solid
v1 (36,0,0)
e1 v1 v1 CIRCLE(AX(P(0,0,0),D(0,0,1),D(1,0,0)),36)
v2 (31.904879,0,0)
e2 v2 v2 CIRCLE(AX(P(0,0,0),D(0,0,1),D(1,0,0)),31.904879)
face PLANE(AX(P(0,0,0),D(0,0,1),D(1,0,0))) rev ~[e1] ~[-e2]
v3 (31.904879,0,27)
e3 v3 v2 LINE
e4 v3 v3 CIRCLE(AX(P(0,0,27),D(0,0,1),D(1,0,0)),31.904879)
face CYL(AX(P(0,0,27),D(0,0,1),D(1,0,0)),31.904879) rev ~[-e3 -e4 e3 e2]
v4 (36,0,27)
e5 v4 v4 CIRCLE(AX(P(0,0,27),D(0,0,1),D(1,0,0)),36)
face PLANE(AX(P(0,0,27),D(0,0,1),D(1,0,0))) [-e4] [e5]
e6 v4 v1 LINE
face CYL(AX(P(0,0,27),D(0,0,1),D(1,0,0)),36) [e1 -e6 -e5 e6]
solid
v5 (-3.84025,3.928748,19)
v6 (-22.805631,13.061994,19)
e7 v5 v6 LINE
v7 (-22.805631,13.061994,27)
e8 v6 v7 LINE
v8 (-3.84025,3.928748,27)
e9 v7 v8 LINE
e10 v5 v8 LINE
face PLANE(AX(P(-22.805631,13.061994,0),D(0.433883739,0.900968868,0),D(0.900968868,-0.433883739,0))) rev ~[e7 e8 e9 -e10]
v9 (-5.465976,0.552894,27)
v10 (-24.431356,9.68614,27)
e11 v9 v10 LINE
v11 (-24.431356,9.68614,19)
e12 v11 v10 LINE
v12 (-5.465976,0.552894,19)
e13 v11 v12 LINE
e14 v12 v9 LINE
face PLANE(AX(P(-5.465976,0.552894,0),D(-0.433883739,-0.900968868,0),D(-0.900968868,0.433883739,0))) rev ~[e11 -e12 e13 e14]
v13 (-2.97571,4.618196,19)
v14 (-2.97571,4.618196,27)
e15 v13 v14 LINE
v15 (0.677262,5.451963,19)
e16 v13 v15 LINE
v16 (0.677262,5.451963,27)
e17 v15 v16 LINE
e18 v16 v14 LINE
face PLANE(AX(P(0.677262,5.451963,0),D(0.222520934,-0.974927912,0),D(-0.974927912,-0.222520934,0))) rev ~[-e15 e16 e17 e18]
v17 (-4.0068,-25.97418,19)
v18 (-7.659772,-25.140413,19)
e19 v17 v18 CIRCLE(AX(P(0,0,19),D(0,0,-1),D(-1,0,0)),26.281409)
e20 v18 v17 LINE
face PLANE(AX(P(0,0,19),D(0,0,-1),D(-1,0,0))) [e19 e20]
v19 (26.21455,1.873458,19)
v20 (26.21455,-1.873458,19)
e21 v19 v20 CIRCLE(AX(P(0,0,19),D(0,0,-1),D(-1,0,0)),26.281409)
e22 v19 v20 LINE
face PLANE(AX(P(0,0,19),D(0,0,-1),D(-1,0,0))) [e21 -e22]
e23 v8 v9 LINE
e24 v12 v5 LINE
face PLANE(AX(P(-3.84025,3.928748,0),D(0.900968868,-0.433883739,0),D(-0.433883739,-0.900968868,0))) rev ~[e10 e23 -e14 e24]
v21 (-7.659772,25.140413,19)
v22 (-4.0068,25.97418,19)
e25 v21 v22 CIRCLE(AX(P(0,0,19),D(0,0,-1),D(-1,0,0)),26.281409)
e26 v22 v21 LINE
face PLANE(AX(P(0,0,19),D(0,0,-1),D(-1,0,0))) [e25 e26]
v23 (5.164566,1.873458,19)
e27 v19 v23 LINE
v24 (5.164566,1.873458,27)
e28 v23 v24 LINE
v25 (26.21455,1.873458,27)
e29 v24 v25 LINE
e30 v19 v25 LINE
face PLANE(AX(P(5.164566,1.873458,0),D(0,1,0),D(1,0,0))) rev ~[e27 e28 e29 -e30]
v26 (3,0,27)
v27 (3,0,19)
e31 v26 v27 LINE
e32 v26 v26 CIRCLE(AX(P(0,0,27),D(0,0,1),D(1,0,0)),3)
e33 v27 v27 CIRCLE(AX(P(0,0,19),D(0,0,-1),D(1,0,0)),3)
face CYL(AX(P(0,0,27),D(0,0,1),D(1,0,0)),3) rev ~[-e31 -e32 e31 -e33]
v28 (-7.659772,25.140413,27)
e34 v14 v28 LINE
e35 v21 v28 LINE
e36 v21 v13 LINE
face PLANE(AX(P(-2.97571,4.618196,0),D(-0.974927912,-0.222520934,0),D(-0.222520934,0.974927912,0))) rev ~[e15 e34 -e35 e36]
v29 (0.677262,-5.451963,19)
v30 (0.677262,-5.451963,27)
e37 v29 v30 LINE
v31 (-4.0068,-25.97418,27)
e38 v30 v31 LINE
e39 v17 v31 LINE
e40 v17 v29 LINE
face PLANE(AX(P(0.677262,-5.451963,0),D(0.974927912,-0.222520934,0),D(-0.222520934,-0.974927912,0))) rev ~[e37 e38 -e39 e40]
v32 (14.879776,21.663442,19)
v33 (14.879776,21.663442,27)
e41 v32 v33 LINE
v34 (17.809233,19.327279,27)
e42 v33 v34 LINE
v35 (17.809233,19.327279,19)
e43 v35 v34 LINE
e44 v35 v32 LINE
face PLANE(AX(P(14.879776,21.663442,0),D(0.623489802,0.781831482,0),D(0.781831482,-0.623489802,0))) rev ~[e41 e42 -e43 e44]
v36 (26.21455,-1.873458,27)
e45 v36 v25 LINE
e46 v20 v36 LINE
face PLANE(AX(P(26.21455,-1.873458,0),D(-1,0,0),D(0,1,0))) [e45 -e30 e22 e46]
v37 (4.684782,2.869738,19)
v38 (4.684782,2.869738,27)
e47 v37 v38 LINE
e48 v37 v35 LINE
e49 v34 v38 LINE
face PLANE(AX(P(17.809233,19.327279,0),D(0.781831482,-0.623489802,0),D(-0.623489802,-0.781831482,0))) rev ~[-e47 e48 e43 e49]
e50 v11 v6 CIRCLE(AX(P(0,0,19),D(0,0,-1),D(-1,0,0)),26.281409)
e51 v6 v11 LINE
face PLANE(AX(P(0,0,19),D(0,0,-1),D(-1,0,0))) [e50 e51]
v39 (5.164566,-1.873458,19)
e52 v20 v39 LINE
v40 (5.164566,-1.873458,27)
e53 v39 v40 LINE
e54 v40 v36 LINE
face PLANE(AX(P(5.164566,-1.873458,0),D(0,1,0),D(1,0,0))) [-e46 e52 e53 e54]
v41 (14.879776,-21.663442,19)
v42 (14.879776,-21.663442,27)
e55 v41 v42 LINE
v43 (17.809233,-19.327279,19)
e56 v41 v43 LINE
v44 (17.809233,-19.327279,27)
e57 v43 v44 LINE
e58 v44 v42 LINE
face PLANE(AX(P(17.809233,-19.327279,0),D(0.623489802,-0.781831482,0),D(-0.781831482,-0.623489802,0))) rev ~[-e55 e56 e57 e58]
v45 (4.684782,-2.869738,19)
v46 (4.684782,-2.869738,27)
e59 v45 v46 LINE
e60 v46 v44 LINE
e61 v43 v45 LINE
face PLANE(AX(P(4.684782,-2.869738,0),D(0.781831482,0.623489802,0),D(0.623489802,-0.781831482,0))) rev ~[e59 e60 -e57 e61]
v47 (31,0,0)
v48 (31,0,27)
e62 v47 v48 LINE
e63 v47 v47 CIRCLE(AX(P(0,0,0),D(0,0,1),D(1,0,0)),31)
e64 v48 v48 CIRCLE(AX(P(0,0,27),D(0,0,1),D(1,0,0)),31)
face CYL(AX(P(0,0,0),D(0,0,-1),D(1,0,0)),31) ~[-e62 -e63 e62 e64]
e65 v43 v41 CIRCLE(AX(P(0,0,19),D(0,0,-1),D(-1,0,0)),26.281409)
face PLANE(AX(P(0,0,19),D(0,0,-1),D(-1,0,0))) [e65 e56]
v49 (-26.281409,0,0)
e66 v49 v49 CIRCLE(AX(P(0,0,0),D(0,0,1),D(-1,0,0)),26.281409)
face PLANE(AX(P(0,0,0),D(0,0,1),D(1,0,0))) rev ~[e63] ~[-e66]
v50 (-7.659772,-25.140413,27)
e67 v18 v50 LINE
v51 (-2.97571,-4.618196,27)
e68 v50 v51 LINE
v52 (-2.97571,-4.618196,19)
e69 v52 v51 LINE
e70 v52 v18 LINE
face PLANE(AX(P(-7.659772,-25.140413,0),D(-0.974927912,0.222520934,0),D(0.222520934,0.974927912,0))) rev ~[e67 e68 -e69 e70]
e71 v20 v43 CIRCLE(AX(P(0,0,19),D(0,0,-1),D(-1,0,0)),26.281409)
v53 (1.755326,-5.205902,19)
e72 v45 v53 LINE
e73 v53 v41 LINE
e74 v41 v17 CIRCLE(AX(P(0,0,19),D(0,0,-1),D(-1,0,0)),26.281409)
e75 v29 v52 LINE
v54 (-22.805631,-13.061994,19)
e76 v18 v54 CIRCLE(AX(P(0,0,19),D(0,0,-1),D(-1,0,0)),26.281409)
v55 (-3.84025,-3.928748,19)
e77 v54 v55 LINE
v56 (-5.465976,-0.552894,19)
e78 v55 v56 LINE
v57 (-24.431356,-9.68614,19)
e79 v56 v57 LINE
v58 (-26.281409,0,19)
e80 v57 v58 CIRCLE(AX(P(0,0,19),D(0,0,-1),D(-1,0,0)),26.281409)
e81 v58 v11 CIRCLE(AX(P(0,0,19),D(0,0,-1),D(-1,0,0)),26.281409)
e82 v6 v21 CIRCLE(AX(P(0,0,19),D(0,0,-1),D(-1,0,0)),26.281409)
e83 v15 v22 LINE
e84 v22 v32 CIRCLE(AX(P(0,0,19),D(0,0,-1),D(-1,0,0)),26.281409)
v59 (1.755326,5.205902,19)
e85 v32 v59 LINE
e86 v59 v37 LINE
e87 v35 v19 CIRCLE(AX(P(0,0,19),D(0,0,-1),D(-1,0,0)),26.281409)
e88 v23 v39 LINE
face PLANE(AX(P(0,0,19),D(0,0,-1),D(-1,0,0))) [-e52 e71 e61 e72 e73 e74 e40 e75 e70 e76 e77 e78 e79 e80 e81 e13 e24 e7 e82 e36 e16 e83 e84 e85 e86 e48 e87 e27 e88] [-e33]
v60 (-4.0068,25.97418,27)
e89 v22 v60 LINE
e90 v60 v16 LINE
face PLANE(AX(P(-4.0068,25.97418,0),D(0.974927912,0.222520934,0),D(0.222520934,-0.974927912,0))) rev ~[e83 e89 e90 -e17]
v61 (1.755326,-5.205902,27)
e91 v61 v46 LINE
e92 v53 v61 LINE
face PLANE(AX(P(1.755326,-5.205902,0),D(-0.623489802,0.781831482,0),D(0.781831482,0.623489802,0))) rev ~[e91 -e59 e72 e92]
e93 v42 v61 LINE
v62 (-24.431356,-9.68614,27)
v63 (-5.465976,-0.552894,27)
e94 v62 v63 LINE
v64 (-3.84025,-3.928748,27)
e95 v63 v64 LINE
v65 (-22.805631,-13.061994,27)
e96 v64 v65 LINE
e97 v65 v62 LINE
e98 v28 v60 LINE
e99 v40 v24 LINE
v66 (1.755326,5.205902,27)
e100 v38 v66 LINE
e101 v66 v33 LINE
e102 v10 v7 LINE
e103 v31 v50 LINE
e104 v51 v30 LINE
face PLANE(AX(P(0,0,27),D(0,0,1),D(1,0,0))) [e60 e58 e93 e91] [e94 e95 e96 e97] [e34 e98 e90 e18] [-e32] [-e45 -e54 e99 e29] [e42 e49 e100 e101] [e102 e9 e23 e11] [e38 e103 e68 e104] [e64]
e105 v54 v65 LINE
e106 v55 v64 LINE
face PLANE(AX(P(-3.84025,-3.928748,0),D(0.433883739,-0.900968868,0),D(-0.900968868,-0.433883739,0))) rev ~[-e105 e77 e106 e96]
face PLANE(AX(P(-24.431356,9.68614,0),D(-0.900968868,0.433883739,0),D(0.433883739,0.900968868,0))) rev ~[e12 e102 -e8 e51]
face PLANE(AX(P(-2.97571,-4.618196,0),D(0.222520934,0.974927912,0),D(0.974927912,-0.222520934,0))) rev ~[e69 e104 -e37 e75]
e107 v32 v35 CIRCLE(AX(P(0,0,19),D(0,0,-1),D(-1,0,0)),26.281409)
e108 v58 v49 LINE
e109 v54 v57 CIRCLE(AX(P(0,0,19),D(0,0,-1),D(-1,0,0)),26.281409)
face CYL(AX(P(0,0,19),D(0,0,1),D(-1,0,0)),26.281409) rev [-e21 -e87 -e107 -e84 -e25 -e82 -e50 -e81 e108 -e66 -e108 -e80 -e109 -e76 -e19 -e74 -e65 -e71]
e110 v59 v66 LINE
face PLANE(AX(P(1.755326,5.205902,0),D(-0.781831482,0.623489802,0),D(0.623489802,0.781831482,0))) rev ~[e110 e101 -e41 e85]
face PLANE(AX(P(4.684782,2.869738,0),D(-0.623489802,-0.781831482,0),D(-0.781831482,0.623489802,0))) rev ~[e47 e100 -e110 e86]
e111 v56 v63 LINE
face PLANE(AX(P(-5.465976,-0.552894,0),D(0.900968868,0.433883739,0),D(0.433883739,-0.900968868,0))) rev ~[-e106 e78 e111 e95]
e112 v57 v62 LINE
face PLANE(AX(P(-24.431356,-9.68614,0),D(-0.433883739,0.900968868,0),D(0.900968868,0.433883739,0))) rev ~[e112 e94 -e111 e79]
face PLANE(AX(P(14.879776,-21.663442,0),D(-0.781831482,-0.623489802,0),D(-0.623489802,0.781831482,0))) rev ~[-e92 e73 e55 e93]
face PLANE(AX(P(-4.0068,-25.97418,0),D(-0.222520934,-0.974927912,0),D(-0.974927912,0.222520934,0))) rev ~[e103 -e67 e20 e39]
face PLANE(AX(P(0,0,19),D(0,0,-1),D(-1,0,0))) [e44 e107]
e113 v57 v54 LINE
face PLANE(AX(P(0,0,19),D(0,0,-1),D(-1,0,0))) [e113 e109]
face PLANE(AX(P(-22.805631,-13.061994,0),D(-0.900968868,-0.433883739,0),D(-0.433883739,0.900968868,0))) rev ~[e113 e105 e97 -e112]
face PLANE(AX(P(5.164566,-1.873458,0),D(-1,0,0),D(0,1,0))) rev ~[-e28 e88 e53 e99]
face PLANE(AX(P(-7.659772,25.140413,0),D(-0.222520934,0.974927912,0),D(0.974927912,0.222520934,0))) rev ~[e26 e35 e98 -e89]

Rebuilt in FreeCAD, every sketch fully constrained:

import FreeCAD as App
import Part
import Sketcher
from FreeCAD import Vector
Q = App.Units.Quantity

doc = App.newDocument("Part")
body = doc.addObject("PartDesign::Body", "Body")

sketch1 = body.newObject("Sketcher::SketchObject", "Sketch")
sketch1.AttachmentSupport = (doc.getObject("XY_Plane"), [""])
sketch1.MapMode = "FlatFace"
sketch1.addGeometry(Part.Circle(Vector(0, 0, 0), Vector(0, 0, 1), 31), False)
sketch1.addGeometry(Part.LineSegment(Vector(-7.7, -25.1, 0), Vector(-3, -4.6, 0)), False)
sketch1.addGeometry(Part.LineSegment(Vector(-3, -4.6, 0), Vector(0.7, -5.5, 0)), False)
sketch1.addGeometry(Part.LineSegment(Vector(0.7, -5.5, 0), Vector(-4, -26, 0)), False)
sketch1.addGeometry(Part.LineSegment(Vector(-4, -26, 0), Vector(-7.7, -25.1, 0)), False)
sketch1.addGeometry(Part.LineSegment(Vector(-24.4, -9.7, 0), Vector(-5.5, -0.6, 0)), False)
sketch1.addGeometry(Part.LineSegment(Vector(-5.5, -0.6, 0), Vector(-3.8, -3.9, 0)), False)
sketch1.addGeometry(Part.LineSegment(Vector(-3.8, -3.9, 0), Vector(-22.8, -13.1, 0)), False)
sketch1.addGeometry(Part.LineSegment(Vector(-22.8, -13.1, 0), Vector(-24.4, -9.7, 0)), False)
sketch1.addGeometry(Part.LineSegment(Vector(14.9, -21.7, 0), Vector(1.8, -5.2, 0)), False)
sketch1.addGeometry(Part.LineSegment(Vector(1.8, -5.2, 0), Vector(4.7, -2.9, 0)), False)
sketch1.addGeometry(Part.LineSegment(Vector(4.7, -2.9, 0), Vector(17.8, -19.3, 0)), False)
sketch1.addGeometry(Part.LineSegment(Vector(17.8, -19.3, 0), Vector(14.9, -21.7, 0)), False)
sketch1.addGeometry(Part.LineSegment(Vector(-22.8, 13.1, 0), Vector(-3.8, 3.9, 0)), False)
sketch1.addGeometry(Part.LineSegment(Vector(-3.8, 3.9, 0), Vector(-5.5, 0.6, 0)), False)
sketch1.addGeometry(Part.LineSegment(Vector(-5.5, 0.6, 0), Vector(-24.4, 9.7, 0)), False)
sketch1.addGeometry(Part.LineSegment(Vector(-24.4, 9.7, 0), Vector(-22.8, 13.1, 0)), False)
sketch1.addGeometry(Part.LineSegment(Vector(-4, 26, 0), Vector(0.7, 5.5, 0)), False)
sketch1.addGeometry(Part.LineSegment(Vector(0.7, 5.5, 0), Vector(-3, 4.6, 0)), False)
sketch1.addGeometry(Part.LineSegment(Vector(-3, 4.6, 0), Vector(-7.7, 25.1, 0)), False)
sketch1.addGeometry(Part.LineSegment(Vector(-7.7, 25.1, 0), Vector(-4, 26, 0)), False)
sketch1.addGeometry(Part.LineSegment(Vector(17.8, 19.3, 0), Vector(4.7, 2.9, 0)), False)
sketch1.addGeometry(Part.LineSegment(Vector(4.7, 2.9, 0), Vector(1.8, 5.2, 0)), False)
sketch1.addGeometry(Part.LineSegment(Vector(1.8, 5.2, 0), Vector(14.9, 21.7, 0)), False)
sketch1.addGeometry(Part.LineSegment(Vector(14.9, 21.7, 0), Vector(17.8, 19.3, 0)), False)
sketch1.addGeometry(Part.LineSegment(Vector(26.2, -1.9, 0), Vector(5.2, -1.9, 0)), False)
sketch1.addGeometry(Part.LineSegment(Vector(5.2, -1.9, 0), Vector(5.2, 1.9, 0)), False)
sketch1.addGeometry(Part.LineSegment(Vector(5.2, 1.9, 0), Vector(26.2, 1.9, 0)), False)
sketch1.addGeometry(Part.LineSegment(Vector(26.2, 1.9, 0), Vector(26.2, -1.9, 0)), False)
sketch1.addConstraint(Sketcher.Constraint("Coincident", 1, 2, 2, 1))
sketch1.addConstraint(Sketcher.Constraint("Coincident", 2, 2, 3, 1))
sketch1.addConstraint(Sketcher.Constraint("Coincident", 3, 2, 4, 1))
sketch1.addConstraint(Sketcher.Constraint("Coincident", 4, 2, 1, 1))
sketch1.addConstraint(Sketcher.Constraint("Coincident", 5, 2, 6, 1))
sketch1.addConstraint(Sketcher.Constraint("Coincident", 6, 2, 7, 1))
sketch1.addConstraint(Sketcher.Constraint("Coincident", 7, 2, 8, 1))
sketch1.addConstraint(Sketcher.Constraint("Coincident", 8, 2, 5, 1))
sketch1.addConstraint(Sketcher.Constraint("Coincident", 9, 2, 10, 1))
sketch1.addConstraint(Sketcher.Constraint("Coincident", 10, 2, 11, 1))
sketch1.addConstraint(Sketcher.Constraint("Coincident", 11, 2, 12, 1))
sketch1.addConstraint(Sketcher.Constraint("Coincident", 12, 2, 9, 1))
sketch1.addConstraint(Sketcher.Constraint("Coincident", 13, 2, 14, 1))
sketch1.addConstraint(Sketcher.Constraint("Coincident", 14, 2, 15, 1))
sketch1.addConstraint(Sketcher.Constraint("Coincident", 15, 2, 16, 1))
sketch1.addConstraint(Sketcher.Constraint("Coincident", 16, 2, 13, 1))
sketch1.addConstraint(Sketcher.Constraint("Coincident", 17, 2, 18, 1))
sketch1.addConstraint(Sketcher.Constraint("Coincident", 18, 2, 19, 1))
sketch1.addConstraint(Sketcher.Constraint("Coincident", 19, 2, 20, 1))
sketch1.addConstraint(Sketcher.Constraint("Coincident", 20, 2, 17, 1))
sketch1.addConstraint(Sketcher.Constraint("Coincident", 21, 2, 22, 1))
sketch1.addConstraint(Sketcher.Constraint("Coincident", 22, 2, 23, 1))
sketch1.addConstraint(Sketcher.Constraint("Coincident", 23, 2, 24, 1))
sketch1.addConstraint(Sketcher.Constraint("Coincident", 24, 2, 21, 1))
sketch1.addConstraint(Sketcher.Constraint("Coincident", 25, 2, 26, 1))
sketch1.addConstraint(Sketcher.Constraint("Coincident", 26, 2, 27, 1))
sketch1.addConstraint(Sketcher.Constraint("Coincident", 27, 2, 28, 1))
sketch1.addConstraint(Sketcher.Constraint("Coincident", 28, 2, 25, 1))
sketch1.addConstraint(Sketcher.Constraint("Horizontal", 25))
sketch1.addConstraint(Sketcher.Constraint("Vertical", 26))
sketch1.addConstraint(Sketcher.Constraint("Horizontal", 27))
sketch1.addConstraint(Sketcher.Constraint("Vertical", 28))
sketch1.addConstraint(Sketcher.Constraint("Coincident", 0, 3, -1, 1))
sketch1.addConstraint(Sketcher.Constraint("Symmetric", 6, 2, 13, 2, -1))
sketch1.addConstraint(Sketcher.Constraint("Symmetric", 5, 2, 14, 2, -1))
sketch1.addConstraint(Sketcher.Constraint("Symmetric", 8, 2, 15, 2, -1))
sketch1.addConstraint(Sketcher.Constraint("Symmetric", 7, 2, 16, 2, -1))
sketch1.addConstraint(Sketcher.Constraint("Symmetric", 2, 2, 17, 2, -1))
sketch1.addConstraint(Sketcher.Constraint("Symmetric", 1, 2, 18, 2, -1))
sketch1.addConstraint(Sketcher.Constraint("Symmetric", 4, 2, 19, 2, -1))
sketch1.addConstraint(Sketcher.Constraint("Symmetric", 3, 2, 20, 2, -1))
sketch1.addConstraint(Sketcher.Constraint("Symmetric", 10, 2, 21, 2, -1))
sketch1.addConstraint(Sketcher.Constraint("Symmetric", 9, 2, 22, 2, -1))
sketch1.addConstraint(Sketcher.Constraint("Symmetric", 12, 2, 23, 2, -1))
sketch1.addConstraint(Sketcher.Constraint("Symmetric", 11, 2, 24, 2, -1))
sketch1.addConstraint(Sketcher.Constraint("Perpendicular", 1, 2))
sketch1.addConstraint(Sketcher.Constraint("Perpendicular", 2, 3))
sketch1.addConstraint(Sketcher.Constraint("Perpendicular", 3, 4))
sketch1.addConstraint(Sketcher.Constraint("Perpendicular", 5, 6))
sketch1.addConstraint(Sketcher.Constraint("Perpendicular", 6, 7))
sketch1.addConstraint(Sketcher.Constraint("Perpendicular", 7, 8))
sketch1.addConstraint(Sketcher.Constraint("Perpendicular", 9, 10))
sketch1.addConstraint(Sketcher.Constraint("Perpendicular", 10, 11))
sketch1.addConstraint(Sketcher.Constraint("Perpendicular", 11, 12))
sketch1.addConstraint(Sketcher.Constraint("Equal", 3, 5))
sketch1.addConstraint(Sketcher.Constraint("Equal", 4, 6))
sketch1.addConstraint(Sketcher.Constraint("Equal", 7, 9))
sketch1.addConstraint(Sketcher.Constraint("Equal", 8, 10))
sketch1.addConstraint(Sketcher.Constraint("Diameter", 0, Q("62 mm")))
sketch1.addConstraint(Sketcher.Constraint("DistanceX", 3, 2, -1, 1, Q("4.0068 mm")))
sketch1.addConstraint(Sketcher.Constraint("DistanceY", 9, 2, -1, 1, Q("5.205902 mm")))
sketch1.addConstraint(Sketcher.Constraint("DistanceY", 1, 2, 5, 2, Q("4.065302 mm")))
sketch1.addConstraint(Sketcher.Constraint("DistanceY", 7, 2, 5, 2, Q("12.5091 mm")))
sketch1.addConstraint(Sketcher.Constraint("DistanceX", 5, 2, 9, 2, Q("7.221302 mm")))
sketch1.addConstraint(Sketcher.Constraint("DistanceY", 3, 2, 11, 2, Q("6.646901 mm")))
sketch1.addConstraint(Sketcher.Constraint("DistanceY", 10, 2, 17, 2, Q("8.321701 mm")))
sketch1.addConstraint(Sketcher.Constraint("DistanceX", 25, 2, 25, 1, Q("21.049984 mm")))
sketch1.addConstraint(Sketcher.Constraint("DistanceY", 26, 1, 26, 2, Q("3.746915 mm")))
sketch1.addConstraint(Sketcher.Constraint("DistanceX", 1, 2, -1, 1, Q("2.97571 mm")))
sketch1.addConstraint(Sketcher.Constraint("DistanceY", 3, 2, -1, 1, Q("25.97418 mm")))
sketch1.addConstraint(Sketcher.Constraint("DistanceX", 6, 2, -1, 1, Q("3.84025 mm")))
sketch1.addConstraint(Sketcher.Constraint("DistanceY", 6, 2, -1, 1, Q("3.928748 mm")))
sketch1.addConstraint(Sketcher.Constraint("DistanceX", -1, 1, 27, 2, Q("26.21455 mm")))
sketch1.addConstraint(Sketcher.Constraint("DistanceY", 10, 2, 25, 2, Q("0.996281 mm")))
pad1 = body.newObject("PartDesign::Pad", "Pad")
pad1.Profile = sketch1
pad1.Length = 27

sketch2 = body.newObject("Sketcher::SketchObject", "Sketch001")
sketch2.AttachmentSupport = (doc.getObject("XY_Plane"), [""])
sketch2.MapMode = "FlatFace"
sketch2.AttachmentOffset = App.Placement(Vector(0, 0, 27), App.Rotation())
sketch2.addGeometry(Part.Circle(Vector(0, 0, 0), Vector(0, 0, 1), 3), False)
sketch2.addConstraint(Sketcher.Constraint("Coincident", 0, 3, -1, 1))
sketch2.addConstraint(Sketcher.Constraint("Diameter", 0, Q("6 mm")))
pocket1 = body.newObject("PartDesign::Pocket", "Pocket")
pocket1.Profile = sketch2
pocket1.Length = 27

sketch3 = body.newObject("Sketcher::SketchObject", "Sketch002")
sketch3.AttachmentSupport = (doc.getObject("XY_Plane"), [""])
sketch3.MapMode = "FlatFace"
sketch3.AttachmentOffset = App.Placement(Vector(0, 0, 19), App.Rotation())
sketch3.addGeometry(Part.Circle(Vector(0, 0, 0), Vector(0, 0, 1), 26.3), False)
sketch3.addGeometry(Part.Circle(Vector(0, 0, 0), Vector(0, 0, 1), 3), False)
sketch3.addConstraint(Sketcher.Constraint("Coincident", 0, 3, -1, 1))
sketch3.addConstraint(Sketcher.Constraint("Coincident", 1, 3, -1, 1))
sketch3.addConstraint(Sketcher.Constraint("Diameter", 1, Q("6 mm")))
sketch3.addConstraint(Sketcher.Constraint("Diameter", 0, Q("52.562819 mm")))
pocket2 = body.newObject("PartDesign::Pocket", "Pocket001")
pocket2.Profile = sketch3
pocket2.Length = 19
body2 = doc.addObject("PartDesign::Body", "Body001")

sketch4 = body2.newObject("Sketcher::SketchObject", "Sketch003")
sketch4.AttachmentSupport = (doc.getObject("XY_Plane001"), [""])
sketch4.MapMode = "FlatFace"
sketch4.AttachmentOffset = App.Placement(Vector(0, 0, 27), App.Rotation())
sketch4.addGeometry(Part.Circle(Vector(0, 0, 0), Vector(0, 0, 1), 36), False)
sketch4.addGeometry(Part.Circle(Vector(0, 0, 0), Vector(0, 0, 1), 32), False)
sketch4.addConstraint(Sketcher.Constraint("Coincident", 0, 3, -1, 1))
sketch4.addConstraint(Sketcher.Constraint("Coincident", 1, 3, -1, 1))
sketch4.addConstraint(Sketcher.Constraint("Diameter", 0, Q("72 mm")))
sketch4.addConstraint(Sketcher.Constraint("Diameter", 1, Q("63.809758 mm")))
pad2 = body2.newObject("PartDesign::Pad", "Pad001")
pad2.Profile = sketch4
pad2.Length = 27
pad2.Reversed = True

doc.recompute()
